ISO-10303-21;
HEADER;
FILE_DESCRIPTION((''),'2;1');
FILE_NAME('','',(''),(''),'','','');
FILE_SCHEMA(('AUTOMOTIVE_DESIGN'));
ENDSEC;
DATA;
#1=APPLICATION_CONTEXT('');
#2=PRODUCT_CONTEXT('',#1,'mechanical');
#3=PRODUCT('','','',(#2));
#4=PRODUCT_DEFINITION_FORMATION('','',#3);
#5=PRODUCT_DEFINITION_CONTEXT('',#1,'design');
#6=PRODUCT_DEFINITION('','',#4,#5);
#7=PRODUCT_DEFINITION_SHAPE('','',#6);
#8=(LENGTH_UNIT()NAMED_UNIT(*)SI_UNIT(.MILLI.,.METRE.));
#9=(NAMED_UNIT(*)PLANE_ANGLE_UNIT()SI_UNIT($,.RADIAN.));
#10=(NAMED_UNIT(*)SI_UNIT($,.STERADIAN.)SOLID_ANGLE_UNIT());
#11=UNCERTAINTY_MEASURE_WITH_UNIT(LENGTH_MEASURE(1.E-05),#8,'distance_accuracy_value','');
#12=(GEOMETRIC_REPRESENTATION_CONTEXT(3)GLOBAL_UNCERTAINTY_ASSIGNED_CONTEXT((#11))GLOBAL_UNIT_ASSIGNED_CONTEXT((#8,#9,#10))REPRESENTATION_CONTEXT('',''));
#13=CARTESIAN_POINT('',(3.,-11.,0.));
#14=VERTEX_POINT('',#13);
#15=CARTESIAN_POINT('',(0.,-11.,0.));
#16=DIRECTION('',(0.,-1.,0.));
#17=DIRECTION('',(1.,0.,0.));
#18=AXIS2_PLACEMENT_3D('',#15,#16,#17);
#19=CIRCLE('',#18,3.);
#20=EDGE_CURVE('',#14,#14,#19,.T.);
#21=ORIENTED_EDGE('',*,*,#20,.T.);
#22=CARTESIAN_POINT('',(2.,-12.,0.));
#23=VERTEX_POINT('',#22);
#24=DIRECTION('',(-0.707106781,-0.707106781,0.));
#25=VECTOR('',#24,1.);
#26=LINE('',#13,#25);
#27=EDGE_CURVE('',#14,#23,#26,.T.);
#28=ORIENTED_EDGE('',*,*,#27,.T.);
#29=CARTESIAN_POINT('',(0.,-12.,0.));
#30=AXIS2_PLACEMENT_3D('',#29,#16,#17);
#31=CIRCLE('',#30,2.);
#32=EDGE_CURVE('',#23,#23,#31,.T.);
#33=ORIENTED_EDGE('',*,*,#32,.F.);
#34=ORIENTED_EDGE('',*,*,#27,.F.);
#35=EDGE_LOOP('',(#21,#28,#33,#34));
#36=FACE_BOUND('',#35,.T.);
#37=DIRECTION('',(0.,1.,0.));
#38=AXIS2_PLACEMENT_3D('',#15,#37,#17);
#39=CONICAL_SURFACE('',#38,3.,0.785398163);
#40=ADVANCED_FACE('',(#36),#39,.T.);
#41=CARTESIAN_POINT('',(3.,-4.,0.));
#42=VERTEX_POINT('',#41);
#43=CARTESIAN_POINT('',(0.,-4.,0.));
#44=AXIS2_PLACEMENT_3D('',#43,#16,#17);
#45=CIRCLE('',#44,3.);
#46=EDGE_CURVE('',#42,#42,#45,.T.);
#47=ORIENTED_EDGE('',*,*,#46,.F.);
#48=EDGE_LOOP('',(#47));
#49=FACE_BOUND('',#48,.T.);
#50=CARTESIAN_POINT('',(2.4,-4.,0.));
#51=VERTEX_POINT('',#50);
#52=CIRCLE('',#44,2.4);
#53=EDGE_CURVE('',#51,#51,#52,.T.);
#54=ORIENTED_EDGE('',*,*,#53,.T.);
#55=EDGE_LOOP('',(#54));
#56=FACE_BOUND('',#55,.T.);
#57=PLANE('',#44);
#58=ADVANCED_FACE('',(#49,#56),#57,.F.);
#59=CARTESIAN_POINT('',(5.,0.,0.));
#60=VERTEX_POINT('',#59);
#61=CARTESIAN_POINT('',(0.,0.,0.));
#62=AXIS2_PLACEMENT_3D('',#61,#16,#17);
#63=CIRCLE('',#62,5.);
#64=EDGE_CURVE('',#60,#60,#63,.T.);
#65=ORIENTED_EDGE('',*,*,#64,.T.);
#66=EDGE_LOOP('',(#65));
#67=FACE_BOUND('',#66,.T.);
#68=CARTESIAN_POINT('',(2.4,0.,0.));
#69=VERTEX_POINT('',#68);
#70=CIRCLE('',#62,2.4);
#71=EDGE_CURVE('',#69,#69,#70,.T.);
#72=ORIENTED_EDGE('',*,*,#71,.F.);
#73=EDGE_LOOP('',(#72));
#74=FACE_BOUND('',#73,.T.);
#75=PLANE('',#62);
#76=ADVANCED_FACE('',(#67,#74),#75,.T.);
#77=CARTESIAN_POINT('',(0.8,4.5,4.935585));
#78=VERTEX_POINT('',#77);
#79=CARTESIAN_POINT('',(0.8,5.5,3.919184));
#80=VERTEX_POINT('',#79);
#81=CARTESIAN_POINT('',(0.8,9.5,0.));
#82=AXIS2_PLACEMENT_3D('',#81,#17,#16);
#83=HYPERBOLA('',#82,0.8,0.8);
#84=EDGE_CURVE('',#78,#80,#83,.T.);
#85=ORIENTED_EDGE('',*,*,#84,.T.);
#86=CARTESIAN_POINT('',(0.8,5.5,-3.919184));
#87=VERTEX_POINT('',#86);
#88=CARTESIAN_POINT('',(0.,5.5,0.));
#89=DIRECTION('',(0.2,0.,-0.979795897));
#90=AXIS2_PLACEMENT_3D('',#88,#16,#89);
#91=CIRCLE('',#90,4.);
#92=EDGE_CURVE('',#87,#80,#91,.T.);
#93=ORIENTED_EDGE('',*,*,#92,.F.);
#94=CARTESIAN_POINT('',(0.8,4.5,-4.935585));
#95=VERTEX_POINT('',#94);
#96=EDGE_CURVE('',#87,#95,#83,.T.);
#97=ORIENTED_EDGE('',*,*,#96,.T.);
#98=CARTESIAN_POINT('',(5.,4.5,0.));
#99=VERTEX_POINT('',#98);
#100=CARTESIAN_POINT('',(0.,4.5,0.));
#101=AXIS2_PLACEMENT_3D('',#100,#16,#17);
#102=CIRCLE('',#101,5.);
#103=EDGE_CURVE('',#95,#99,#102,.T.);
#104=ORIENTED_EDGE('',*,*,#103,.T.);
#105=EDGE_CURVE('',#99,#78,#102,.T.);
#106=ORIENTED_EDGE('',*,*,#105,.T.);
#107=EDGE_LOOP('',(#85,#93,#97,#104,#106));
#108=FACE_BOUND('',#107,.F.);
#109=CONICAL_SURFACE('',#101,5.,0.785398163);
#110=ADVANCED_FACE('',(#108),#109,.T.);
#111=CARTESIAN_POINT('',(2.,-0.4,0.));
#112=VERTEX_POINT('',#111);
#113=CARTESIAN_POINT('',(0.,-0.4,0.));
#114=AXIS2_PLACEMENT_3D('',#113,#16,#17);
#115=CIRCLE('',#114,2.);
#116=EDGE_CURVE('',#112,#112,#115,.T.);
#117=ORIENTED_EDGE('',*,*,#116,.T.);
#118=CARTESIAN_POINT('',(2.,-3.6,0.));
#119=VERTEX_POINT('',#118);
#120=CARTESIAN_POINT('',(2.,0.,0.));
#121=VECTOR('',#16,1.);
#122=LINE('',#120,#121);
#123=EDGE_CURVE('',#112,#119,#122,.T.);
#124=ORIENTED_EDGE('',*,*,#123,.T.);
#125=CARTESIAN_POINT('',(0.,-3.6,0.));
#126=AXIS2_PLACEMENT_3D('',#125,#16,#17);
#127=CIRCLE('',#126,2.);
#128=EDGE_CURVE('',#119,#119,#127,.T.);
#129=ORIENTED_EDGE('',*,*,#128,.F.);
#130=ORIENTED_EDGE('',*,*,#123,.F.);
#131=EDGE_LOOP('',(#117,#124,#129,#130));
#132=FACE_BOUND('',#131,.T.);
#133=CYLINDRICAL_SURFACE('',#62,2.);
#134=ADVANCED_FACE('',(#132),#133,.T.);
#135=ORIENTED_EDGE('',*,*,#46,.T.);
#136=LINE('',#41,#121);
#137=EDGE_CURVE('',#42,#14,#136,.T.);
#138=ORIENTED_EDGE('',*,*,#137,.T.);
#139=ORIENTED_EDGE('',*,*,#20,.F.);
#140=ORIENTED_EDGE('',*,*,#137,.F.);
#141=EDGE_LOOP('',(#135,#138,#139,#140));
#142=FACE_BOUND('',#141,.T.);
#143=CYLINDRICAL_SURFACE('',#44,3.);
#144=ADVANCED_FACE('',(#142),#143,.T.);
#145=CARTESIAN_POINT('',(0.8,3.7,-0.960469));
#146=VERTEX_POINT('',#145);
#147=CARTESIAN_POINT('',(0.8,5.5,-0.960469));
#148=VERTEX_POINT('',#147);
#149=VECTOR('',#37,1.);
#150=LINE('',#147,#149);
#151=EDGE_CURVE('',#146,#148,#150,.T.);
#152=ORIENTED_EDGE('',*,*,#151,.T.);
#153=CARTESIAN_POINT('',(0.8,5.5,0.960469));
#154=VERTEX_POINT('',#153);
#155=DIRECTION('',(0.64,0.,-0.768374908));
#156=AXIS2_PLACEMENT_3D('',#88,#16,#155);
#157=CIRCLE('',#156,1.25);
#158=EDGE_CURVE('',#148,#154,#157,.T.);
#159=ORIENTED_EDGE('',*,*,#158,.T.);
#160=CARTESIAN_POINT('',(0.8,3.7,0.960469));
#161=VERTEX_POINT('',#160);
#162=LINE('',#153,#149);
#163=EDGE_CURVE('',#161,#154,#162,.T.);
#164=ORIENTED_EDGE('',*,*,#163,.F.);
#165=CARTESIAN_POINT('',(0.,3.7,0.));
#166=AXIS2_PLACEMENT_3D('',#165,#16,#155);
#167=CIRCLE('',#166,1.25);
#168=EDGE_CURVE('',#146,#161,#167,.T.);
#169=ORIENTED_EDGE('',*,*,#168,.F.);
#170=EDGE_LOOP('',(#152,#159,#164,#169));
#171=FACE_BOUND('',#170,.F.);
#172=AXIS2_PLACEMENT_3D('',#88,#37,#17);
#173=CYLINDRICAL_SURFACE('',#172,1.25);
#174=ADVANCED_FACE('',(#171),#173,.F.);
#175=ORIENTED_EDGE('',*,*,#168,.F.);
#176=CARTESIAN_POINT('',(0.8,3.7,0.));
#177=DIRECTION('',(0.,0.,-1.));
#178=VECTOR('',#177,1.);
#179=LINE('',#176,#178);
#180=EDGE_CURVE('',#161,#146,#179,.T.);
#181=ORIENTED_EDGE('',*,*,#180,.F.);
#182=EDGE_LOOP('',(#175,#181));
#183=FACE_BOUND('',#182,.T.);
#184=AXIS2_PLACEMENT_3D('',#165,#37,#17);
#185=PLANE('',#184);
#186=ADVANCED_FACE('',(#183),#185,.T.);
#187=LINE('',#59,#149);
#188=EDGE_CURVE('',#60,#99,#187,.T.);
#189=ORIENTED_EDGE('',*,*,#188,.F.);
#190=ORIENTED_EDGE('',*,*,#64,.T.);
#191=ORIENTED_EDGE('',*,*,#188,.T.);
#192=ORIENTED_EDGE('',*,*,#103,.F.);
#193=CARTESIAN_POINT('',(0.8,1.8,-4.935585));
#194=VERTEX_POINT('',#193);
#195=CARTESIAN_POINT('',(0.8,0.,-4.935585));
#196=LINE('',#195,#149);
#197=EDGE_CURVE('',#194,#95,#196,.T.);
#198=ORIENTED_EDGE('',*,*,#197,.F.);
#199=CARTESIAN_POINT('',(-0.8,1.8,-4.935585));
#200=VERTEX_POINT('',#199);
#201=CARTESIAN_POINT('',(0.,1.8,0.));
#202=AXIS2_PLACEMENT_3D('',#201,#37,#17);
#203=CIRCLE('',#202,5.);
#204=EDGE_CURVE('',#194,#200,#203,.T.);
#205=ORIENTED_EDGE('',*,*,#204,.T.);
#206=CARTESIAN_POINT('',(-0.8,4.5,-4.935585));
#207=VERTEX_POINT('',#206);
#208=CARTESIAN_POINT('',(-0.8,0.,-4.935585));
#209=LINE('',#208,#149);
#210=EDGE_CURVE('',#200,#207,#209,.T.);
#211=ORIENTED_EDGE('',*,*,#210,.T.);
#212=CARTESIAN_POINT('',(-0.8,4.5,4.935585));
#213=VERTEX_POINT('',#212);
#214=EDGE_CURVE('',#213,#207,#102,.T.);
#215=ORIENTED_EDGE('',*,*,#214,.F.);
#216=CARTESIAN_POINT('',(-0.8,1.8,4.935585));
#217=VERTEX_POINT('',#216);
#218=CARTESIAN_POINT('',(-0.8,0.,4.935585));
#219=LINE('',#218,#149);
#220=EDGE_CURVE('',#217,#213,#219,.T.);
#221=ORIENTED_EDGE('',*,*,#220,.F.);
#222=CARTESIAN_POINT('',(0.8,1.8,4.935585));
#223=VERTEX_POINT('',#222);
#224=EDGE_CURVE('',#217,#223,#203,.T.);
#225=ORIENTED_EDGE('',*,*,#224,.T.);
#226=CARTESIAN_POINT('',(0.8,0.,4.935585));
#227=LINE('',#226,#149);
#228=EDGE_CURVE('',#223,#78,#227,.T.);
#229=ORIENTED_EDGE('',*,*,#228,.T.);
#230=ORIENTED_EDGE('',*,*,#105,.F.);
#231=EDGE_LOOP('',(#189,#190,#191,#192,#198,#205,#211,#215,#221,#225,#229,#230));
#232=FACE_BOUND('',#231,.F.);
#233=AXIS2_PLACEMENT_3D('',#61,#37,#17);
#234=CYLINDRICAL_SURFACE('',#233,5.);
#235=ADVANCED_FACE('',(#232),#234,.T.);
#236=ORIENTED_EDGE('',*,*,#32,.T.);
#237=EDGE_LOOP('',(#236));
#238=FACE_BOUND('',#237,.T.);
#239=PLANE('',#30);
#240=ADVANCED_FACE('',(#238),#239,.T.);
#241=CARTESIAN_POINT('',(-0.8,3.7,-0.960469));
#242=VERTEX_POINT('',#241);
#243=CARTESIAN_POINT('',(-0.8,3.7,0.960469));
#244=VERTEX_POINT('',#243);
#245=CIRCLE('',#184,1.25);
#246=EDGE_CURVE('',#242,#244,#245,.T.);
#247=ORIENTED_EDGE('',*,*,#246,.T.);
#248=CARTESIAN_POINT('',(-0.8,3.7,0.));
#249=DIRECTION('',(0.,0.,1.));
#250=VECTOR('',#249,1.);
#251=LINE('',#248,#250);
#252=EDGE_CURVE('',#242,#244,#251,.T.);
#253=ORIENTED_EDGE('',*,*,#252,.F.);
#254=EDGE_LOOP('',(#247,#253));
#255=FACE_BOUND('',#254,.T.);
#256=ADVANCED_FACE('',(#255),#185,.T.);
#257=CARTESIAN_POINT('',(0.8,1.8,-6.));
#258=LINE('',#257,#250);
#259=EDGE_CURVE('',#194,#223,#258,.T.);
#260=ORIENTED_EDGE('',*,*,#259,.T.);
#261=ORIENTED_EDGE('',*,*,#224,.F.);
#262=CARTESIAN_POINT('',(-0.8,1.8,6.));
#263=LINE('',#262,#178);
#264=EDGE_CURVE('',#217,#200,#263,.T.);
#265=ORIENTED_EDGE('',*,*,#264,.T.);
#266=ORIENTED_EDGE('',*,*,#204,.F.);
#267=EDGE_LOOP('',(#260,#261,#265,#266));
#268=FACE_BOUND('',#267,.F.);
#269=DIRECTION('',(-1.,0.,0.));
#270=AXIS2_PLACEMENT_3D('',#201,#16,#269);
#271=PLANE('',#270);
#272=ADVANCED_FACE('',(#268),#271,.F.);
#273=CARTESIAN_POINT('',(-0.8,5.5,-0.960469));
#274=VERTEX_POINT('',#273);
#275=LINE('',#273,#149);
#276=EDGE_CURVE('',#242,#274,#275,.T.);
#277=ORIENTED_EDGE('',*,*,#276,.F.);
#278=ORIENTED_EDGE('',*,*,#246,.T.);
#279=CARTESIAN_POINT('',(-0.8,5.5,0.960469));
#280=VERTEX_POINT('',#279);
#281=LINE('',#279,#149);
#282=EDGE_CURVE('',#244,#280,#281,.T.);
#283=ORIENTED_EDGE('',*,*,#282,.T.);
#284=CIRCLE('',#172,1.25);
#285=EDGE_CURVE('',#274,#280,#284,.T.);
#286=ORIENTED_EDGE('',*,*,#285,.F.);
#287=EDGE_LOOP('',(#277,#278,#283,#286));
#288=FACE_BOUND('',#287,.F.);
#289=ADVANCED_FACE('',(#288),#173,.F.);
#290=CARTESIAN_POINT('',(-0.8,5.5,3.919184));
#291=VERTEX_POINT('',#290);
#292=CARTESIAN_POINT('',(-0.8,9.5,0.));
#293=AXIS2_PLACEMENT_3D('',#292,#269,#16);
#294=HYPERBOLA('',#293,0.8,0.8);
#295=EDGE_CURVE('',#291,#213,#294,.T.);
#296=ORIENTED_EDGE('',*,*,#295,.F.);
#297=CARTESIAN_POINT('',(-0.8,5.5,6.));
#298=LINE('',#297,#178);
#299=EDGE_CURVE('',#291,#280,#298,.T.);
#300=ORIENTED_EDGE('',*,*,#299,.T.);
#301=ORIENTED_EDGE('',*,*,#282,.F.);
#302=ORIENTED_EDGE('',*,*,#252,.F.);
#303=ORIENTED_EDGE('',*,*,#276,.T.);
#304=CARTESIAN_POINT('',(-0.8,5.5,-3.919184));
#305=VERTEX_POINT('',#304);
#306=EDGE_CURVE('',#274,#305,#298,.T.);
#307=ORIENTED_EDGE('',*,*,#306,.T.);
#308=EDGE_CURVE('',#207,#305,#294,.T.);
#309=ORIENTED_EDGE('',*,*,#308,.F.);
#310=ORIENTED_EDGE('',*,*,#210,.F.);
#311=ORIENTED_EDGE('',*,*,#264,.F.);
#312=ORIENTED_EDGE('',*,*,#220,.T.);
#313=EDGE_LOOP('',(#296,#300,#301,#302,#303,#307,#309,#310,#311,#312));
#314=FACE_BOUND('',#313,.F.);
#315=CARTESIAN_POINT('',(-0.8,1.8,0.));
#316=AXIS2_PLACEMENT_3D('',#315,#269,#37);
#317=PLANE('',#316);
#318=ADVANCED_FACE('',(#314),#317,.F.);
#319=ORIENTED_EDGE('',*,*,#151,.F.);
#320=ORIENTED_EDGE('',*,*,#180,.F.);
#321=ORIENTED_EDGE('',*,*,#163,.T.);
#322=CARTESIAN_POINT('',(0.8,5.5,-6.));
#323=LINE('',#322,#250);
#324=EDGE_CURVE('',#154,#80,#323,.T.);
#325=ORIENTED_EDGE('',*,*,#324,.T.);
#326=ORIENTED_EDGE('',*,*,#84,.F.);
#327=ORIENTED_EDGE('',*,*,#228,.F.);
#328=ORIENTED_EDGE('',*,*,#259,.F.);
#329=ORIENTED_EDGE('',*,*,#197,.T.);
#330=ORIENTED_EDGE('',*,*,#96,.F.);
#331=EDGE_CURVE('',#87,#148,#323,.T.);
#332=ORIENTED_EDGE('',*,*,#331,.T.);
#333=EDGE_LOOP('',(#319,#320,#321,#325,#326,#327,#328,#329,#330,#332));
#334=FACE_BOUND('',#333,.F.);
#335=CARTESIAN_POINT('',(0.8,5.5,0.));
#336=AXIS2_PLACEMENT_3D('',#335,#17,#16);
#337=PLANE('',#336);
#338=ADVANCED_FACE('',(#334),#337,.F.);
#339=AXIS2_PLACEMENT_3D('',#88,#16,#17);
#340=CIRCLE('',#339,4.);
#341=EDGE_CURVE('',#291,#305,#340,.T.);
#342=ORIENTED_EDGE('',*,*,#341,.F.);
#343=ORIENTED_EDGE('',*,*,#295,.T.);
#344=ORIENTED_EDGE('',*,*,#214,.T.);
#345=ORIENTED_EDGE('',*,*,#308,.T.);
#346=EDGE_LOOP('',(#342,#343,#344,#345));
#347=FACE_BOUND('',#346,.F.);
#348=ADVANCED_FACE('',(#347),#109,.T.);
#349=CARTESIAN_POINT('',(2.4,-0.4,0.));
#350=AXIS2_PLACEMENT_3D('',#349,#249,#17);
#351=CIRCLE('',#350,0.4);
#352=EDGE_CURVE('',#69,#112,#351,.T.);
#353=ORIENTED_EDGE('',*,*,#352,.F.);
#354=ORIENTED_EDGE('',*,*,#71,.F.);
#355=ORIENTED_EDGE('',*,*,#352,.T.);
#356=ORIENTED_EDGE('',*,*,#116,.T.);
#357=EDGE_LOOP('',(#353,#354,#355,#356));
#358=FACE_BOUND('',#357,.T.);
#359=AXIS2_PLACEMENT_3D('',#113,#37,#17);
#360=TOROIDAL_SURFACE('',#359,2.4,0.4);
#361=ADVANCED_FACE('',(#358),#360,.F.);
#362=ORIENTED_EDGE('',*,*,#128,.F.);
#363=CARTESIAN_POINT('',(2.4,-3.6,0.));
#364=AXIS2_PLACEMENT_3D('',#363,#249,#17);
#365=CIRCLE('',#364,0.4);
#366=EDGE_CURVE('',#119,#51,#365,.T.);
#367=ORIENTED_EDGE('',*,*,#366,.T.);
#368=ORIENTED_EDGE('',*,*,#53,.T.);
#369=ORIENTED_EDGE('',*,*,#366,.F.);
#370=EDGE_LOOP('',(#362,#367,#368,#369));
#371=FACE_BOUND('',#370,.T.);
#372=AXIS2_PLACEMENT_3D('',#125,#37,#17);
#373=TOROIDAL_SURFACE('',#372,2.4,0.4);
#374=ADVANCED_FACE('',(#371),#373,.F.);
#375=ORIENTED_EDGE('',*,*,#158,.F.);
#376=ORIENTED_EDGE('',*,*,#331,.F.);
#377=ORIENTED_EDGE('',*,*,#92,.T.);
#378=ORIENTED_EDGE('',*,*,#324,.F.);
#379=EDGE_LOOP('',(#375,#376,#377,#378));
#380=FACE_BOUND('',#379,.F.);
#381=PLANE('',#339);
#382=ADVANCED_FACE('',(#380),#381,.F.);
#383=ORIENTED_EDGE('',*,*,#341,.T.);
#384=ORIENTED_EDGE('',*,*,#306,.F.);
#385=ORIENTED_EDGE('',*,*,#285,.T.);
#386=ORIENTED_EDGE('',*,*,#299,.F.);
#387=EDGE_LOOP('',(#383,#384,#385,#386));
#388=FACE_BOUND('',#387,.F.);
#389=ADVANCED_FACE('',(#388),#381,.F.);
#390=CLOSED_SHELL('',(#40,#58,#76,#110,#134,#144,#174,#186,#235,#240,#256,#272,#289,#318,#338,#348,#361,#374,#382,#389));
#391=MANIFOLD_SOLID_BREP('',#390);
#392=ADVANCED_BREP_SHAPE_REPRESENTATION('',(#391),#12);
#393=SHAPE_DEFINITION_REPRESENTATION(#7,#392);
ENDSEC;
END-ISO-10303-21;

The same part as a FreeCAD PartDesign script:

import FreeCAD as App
import Part
import Sketcher

V = App.Vector


def edges_at(feature, points):
    """Names of the edges that pass closest to the given points."""
    edges = feature.Shape.Edges
    near = lambda p: min(range(len(edges)), key=lambda i: edges[i].distToShape(Part.Vertex(*p))[0])
    return sorted({f"Edge{near(p) + 1}" for p in points})

doc = App.newDocument("Part")
body = doc.addObject("PartDesign::Body", "Body")

# Sketch on XY plane
sketch1 = doc.addObject("Sketcher::SketchObject", "Sketch")
body.addObject(sketch1)
sketch1.AttachmentSupport = (doc.XY_Plane, [""])
sketch1.MapMode = "FlatFace"
sketch1.addGeometry([
    Part.LineSegment(V(2, 0, 0), V(5, 0, 0)),  # 0
    Part.LineSegment(V(5, 0, 0), V(5, 5.5, 0)),  # 1
    Part.LineSegment(V(5, 5.5, 0), V(0, 5.5, 0)),  # 2
    Part.LineSegment(V(0, 5.5, 0), V(0, -12, 0)),  # 3
    Part.LineSegment(V(0, -12, 0), V(3, -12, 0)),  # 4
    Part.LineSegment(V(3, -12, 0), V(3, -4, 0)),  # 5
    Part.LineSegment(V(3, -4, 0), V(2, -4, 0)),  # 6
    Part.LineSegment(V(2, -4, 0), V(2, 0, 0)),  # 7
], False)
sketch1.addConstraint([
    Sketcher.Constraint("Coincident", 0, 2, 1, 1),
    Sketcher.Constraint("Coincident", 1, 2, 2, 1),
    Sketcher.Constraint("Coincident", 2, 2, 3, 1),
    Sketcher.Constraint("Coincident", 3, 2, 4, 1),
    Sketcher.Constraint("Coincident", 4, 2, 5, 1),
    Sketcher.Constraint("Coincident", 5, 2, 6, 1),
    Sketcher.Constraint("Coincident", 6, 2, 7, 1),
    Sketcher.Constraint("Coincident", 7, 2, 0, 1),
    Sketcher.Constraint("Horizontal", 0),
    Sketcher.Constraint("Vertical", 1),
    Sketcher.Constraint("Horizontal", 2),
    Sketcher.Constraint("Vertical", 3),
    Sketcher.Constraint("Horizontal", 4),
    Sketcher.Constraint("Vertical", 5),
    Sketcher.Constraint("Horizontal", 6),
    Sketcher.Constraint("Vertical", 7),
    Sketcher.Constraint("PointOnObject", 0, 2, -1),
    Sketcher.Constraint("PointOnObject", 2, 2, -2),
    Sketcher.Constraint("Equal", 0, 4),
    Sketcher.Constraint("DistanceY", 5, 1, 5, 2, 8.0),
    Sketcher.Constraint("DistanceY", 7, 1, 7, 2, 4.0),
    Sketcher.Constraint("DistanceY", 1, 1, 1, 2, 5.5),
    Sketcher.Constraint("DistanceX", 0, 1, 0, 2, 3.0),
    Sketcher.Constraint("DistanceX", 2, 2, 2, 1, 5.0),
])
revolution = doc.addObject("PartDesign::Revolution", "Revolution")
body.addObject(revolution)
revolution.Profile = sketch1
revolution.ReferenceAxis = (sketch1, ["V_Axis"])
revolution.Angle = 360

# Sketch on XZ plane
sketch2 = doc.addObject("Sketcher::SketchObject", "Sketch001")
body.addObject(sketch2)
sketch2.AttachmentSupport = (doc.XZ_Plane, [""])
sketch2.MapMode = "FlatFace"
sketch2.AttachmentOffset = App.Placement(V(0, 0, -5.5), App.Rotation())
sketch2.addGeometry(Part.Circle(V(0, 0, 0), V(0, 0, 1), 1.2), False)
sketch2.addConstraint([
    Sketcher.Constraint("Coincident", 0, 3, -1, 1),
    Sketcher.Constraint("Diameter", 0, 2.5),
])
pocket1 = doc.addObject("PartDesign::Pocket", "Pocket")
body.addObject(pocket1)
pocket1.Profile = sketch2
pocket1.Length = 1.8
pocket1.Reversed = True
doc.recompute()

chamfer = doc.addObject("PartDesign::Chamfer", "Chamfer")
body.addObject(chamfer)
chamfer.Base = (pocket1, edges_at(pocket1, [(-5, 5.5, 0)]))
chamfer.Size = 1

# Sketch on XY plane
sketch3 = doc.addObject("Sketcher::SketchObject", "Sketch002")
body.addObject(sketch3)
sketch3.AttachmentSupport = (doc.XY_Plane, [""])
sketch3.MapMode = "FlatFace"
sketch3.addGeometry([
    Part.LineSegment(V(-0.8, 1.8, 0), V(0.8, 1.8, 0)),
    Part.LineSegment(V(0.8, 1.8, 0), V(0.8, 5.5, 0)),
    Part.LineSegment(V(0.8, 5.5, 0), V(-0.8, 5.5, 0)),
    Part.LineSegment(V(-0.8, 5.5, 0), V(-0.8, 1.8, 0)),
], False)
sketch3.addConstraint([
    Sketcher.Constraint("Coincident", 0, 2, 1, 1),
    Sketcher.Constraint("Coincident", 1, 2, 2, 1),
    Sketcher.Constraint("Coincident", 2, 2, 3, 1),
    Sketcher.Constraint("Coincident", 3, 2, 0, 1),
    Sketcher.Constraint("Horizontal", 0),
    Sketcher.Constraint("Vertical", 1),
    Sketcher.Constraint("Horizontal", 2),
    Sketcher.Constraint("Vertical", 3),
    Sketcher.Constraint("DistanceX", 0, 1, 0, 2, 1.6),
    Sketcher.Constraint("DistanceY", -1, 1, 0, 2, 1.8),
    Sketcher.Constraint("DistanceY", 1, 1, 1, 2, 3.7),
    Sketcher.Constraint("DistanceX", -1, 1, 0, 2, 0.8),
])
pocket2 = doc.addObject("PartDesign::Pocket", "Pocket001")
body.addObject(pocket2)
pocket2.Profile = sketch3
pocket2.Type = "ThroughAll"
pocket2.Midplane = True
doc.recompute()

fillet = doc.addObject("PartDesign::Fillet", "Fillet")
body.addObject(fillet)
fillet.Base = (pocket2, edges_at(pocket2, [(-2, 0, 0), (-2, -4, 0)]))
fillet.Radius = 0.4
doc.recompute()

chamfer2 = doc.addObject("PartDesign::Chamfer", "Chamfer001")
body.addObject(chamfer2)
chamfer2.Base = (fillet, edges_at(fillet, [(-3, -12, 0)]))
chamfer2.Size = 1

doc.recompute()
